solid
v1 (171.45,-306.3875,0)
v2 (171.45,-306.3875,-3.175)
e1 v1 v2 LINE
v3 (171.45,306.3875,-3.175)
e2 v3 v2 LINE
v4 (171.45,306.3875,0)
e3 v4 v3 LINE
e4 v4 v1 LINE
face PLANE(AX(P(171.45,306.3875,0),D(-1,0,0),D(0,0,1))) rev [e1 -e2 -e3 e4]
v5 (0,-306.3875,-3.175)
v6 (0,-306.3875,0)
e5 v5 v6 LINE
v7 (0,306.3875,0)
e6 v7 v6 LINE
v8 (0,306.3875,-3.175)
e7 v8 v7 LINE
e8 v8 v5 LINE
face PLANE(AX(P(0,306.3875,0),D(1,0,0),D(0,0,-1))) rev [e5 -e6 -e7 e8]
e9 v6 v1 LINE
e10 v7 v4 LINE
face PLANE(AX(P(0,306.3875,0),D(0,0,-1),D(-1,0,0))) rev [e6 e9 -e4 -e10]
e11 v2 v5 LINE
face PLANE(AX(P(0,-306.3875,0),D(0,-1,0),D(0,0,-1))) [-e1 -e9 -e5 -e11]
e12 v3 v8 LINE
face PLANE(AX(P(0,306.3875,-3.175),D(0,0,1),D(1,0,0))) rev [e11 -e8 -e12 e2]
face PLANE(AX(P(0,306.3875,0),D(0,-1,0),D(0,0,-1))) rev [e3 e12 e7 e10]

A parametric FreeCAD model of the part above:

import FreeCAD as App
import Part
import Sketcher
from FreeCAD import Vector
Q = App.Units.Quantity

doc = App.newDocument("Part")
body = doc.addObject("PartDesign::Body", "Body")

sketch1 = doc.addObject("Sketcher::SketchObject", "Sketch")
body.addObject(sketch1)
sketch1.AttachmentSupport = (doc.XZ_Plane, [""])
sketch1.MapMode = "FlatFace"
sketch1.addGeometry(Part.LineSegment(Vector(0, -3.175, 0), Vector(0, 0, 0)), False)
sketch1.addGeometry(Part.LineSegment(Vector(0, 0, 0), Vector(171.45, 0, 0)), False)
sketch1.addGeometry(Part.LineSegment(Vector(171.45, 0, 0), Vector(171.45, -3.175, 0)), False)
sketch1.addGeometry(Part.LineSegment(Vector(171.45, -3.175, 0), Vector(0, -3.175, 0)), False)
sketch1.addConstraint(Sketcher.Constraint("Coincident", 0, 2, 1, 1))
sketch1.addConstraint(Sketcher.Constraint("Coincident", 1, 2, 2, 1))
sketch1.addConstraint(Sketcher.Constraint("Coincident", 2, 2, 3, 1))
sketch1.addConstraint(Sketcher.Constraint("Coincident", 3, 2, 0, 1))
sketch1.addConstraint(Sketcher.Constraint("Vertical", 0))
sketch1.addConstraint(Sketcher.Constraint("Horizontal", 1))
sketch1.addConstraint(Sketcher.Constraint("Vertical", 2))
sketch1.addConstraint(Sketcher.Constraint("Horizontal", 3))
sketch1.addConstraint(Sketcher.Constraint("Coincident", 0, 2, -1, 1))
sketch1.addConstraint(Sketcher.Constraint("DistanceX", 1, 1, 1, 2, Q("6.75 in")))
sketch1.addConstraint(Sketcher.Constraint("DistanceY", 0, 1, 0, 2, Q("0.125 in")))
pad1 = doc.addObject("PartDesign::Pad", "Pad")
body.addObject(pad1)
pad1.Profile = sketch1
pad1.Length = Q("24.125 in")
pad1.Midplane = True

doc.recompute()
